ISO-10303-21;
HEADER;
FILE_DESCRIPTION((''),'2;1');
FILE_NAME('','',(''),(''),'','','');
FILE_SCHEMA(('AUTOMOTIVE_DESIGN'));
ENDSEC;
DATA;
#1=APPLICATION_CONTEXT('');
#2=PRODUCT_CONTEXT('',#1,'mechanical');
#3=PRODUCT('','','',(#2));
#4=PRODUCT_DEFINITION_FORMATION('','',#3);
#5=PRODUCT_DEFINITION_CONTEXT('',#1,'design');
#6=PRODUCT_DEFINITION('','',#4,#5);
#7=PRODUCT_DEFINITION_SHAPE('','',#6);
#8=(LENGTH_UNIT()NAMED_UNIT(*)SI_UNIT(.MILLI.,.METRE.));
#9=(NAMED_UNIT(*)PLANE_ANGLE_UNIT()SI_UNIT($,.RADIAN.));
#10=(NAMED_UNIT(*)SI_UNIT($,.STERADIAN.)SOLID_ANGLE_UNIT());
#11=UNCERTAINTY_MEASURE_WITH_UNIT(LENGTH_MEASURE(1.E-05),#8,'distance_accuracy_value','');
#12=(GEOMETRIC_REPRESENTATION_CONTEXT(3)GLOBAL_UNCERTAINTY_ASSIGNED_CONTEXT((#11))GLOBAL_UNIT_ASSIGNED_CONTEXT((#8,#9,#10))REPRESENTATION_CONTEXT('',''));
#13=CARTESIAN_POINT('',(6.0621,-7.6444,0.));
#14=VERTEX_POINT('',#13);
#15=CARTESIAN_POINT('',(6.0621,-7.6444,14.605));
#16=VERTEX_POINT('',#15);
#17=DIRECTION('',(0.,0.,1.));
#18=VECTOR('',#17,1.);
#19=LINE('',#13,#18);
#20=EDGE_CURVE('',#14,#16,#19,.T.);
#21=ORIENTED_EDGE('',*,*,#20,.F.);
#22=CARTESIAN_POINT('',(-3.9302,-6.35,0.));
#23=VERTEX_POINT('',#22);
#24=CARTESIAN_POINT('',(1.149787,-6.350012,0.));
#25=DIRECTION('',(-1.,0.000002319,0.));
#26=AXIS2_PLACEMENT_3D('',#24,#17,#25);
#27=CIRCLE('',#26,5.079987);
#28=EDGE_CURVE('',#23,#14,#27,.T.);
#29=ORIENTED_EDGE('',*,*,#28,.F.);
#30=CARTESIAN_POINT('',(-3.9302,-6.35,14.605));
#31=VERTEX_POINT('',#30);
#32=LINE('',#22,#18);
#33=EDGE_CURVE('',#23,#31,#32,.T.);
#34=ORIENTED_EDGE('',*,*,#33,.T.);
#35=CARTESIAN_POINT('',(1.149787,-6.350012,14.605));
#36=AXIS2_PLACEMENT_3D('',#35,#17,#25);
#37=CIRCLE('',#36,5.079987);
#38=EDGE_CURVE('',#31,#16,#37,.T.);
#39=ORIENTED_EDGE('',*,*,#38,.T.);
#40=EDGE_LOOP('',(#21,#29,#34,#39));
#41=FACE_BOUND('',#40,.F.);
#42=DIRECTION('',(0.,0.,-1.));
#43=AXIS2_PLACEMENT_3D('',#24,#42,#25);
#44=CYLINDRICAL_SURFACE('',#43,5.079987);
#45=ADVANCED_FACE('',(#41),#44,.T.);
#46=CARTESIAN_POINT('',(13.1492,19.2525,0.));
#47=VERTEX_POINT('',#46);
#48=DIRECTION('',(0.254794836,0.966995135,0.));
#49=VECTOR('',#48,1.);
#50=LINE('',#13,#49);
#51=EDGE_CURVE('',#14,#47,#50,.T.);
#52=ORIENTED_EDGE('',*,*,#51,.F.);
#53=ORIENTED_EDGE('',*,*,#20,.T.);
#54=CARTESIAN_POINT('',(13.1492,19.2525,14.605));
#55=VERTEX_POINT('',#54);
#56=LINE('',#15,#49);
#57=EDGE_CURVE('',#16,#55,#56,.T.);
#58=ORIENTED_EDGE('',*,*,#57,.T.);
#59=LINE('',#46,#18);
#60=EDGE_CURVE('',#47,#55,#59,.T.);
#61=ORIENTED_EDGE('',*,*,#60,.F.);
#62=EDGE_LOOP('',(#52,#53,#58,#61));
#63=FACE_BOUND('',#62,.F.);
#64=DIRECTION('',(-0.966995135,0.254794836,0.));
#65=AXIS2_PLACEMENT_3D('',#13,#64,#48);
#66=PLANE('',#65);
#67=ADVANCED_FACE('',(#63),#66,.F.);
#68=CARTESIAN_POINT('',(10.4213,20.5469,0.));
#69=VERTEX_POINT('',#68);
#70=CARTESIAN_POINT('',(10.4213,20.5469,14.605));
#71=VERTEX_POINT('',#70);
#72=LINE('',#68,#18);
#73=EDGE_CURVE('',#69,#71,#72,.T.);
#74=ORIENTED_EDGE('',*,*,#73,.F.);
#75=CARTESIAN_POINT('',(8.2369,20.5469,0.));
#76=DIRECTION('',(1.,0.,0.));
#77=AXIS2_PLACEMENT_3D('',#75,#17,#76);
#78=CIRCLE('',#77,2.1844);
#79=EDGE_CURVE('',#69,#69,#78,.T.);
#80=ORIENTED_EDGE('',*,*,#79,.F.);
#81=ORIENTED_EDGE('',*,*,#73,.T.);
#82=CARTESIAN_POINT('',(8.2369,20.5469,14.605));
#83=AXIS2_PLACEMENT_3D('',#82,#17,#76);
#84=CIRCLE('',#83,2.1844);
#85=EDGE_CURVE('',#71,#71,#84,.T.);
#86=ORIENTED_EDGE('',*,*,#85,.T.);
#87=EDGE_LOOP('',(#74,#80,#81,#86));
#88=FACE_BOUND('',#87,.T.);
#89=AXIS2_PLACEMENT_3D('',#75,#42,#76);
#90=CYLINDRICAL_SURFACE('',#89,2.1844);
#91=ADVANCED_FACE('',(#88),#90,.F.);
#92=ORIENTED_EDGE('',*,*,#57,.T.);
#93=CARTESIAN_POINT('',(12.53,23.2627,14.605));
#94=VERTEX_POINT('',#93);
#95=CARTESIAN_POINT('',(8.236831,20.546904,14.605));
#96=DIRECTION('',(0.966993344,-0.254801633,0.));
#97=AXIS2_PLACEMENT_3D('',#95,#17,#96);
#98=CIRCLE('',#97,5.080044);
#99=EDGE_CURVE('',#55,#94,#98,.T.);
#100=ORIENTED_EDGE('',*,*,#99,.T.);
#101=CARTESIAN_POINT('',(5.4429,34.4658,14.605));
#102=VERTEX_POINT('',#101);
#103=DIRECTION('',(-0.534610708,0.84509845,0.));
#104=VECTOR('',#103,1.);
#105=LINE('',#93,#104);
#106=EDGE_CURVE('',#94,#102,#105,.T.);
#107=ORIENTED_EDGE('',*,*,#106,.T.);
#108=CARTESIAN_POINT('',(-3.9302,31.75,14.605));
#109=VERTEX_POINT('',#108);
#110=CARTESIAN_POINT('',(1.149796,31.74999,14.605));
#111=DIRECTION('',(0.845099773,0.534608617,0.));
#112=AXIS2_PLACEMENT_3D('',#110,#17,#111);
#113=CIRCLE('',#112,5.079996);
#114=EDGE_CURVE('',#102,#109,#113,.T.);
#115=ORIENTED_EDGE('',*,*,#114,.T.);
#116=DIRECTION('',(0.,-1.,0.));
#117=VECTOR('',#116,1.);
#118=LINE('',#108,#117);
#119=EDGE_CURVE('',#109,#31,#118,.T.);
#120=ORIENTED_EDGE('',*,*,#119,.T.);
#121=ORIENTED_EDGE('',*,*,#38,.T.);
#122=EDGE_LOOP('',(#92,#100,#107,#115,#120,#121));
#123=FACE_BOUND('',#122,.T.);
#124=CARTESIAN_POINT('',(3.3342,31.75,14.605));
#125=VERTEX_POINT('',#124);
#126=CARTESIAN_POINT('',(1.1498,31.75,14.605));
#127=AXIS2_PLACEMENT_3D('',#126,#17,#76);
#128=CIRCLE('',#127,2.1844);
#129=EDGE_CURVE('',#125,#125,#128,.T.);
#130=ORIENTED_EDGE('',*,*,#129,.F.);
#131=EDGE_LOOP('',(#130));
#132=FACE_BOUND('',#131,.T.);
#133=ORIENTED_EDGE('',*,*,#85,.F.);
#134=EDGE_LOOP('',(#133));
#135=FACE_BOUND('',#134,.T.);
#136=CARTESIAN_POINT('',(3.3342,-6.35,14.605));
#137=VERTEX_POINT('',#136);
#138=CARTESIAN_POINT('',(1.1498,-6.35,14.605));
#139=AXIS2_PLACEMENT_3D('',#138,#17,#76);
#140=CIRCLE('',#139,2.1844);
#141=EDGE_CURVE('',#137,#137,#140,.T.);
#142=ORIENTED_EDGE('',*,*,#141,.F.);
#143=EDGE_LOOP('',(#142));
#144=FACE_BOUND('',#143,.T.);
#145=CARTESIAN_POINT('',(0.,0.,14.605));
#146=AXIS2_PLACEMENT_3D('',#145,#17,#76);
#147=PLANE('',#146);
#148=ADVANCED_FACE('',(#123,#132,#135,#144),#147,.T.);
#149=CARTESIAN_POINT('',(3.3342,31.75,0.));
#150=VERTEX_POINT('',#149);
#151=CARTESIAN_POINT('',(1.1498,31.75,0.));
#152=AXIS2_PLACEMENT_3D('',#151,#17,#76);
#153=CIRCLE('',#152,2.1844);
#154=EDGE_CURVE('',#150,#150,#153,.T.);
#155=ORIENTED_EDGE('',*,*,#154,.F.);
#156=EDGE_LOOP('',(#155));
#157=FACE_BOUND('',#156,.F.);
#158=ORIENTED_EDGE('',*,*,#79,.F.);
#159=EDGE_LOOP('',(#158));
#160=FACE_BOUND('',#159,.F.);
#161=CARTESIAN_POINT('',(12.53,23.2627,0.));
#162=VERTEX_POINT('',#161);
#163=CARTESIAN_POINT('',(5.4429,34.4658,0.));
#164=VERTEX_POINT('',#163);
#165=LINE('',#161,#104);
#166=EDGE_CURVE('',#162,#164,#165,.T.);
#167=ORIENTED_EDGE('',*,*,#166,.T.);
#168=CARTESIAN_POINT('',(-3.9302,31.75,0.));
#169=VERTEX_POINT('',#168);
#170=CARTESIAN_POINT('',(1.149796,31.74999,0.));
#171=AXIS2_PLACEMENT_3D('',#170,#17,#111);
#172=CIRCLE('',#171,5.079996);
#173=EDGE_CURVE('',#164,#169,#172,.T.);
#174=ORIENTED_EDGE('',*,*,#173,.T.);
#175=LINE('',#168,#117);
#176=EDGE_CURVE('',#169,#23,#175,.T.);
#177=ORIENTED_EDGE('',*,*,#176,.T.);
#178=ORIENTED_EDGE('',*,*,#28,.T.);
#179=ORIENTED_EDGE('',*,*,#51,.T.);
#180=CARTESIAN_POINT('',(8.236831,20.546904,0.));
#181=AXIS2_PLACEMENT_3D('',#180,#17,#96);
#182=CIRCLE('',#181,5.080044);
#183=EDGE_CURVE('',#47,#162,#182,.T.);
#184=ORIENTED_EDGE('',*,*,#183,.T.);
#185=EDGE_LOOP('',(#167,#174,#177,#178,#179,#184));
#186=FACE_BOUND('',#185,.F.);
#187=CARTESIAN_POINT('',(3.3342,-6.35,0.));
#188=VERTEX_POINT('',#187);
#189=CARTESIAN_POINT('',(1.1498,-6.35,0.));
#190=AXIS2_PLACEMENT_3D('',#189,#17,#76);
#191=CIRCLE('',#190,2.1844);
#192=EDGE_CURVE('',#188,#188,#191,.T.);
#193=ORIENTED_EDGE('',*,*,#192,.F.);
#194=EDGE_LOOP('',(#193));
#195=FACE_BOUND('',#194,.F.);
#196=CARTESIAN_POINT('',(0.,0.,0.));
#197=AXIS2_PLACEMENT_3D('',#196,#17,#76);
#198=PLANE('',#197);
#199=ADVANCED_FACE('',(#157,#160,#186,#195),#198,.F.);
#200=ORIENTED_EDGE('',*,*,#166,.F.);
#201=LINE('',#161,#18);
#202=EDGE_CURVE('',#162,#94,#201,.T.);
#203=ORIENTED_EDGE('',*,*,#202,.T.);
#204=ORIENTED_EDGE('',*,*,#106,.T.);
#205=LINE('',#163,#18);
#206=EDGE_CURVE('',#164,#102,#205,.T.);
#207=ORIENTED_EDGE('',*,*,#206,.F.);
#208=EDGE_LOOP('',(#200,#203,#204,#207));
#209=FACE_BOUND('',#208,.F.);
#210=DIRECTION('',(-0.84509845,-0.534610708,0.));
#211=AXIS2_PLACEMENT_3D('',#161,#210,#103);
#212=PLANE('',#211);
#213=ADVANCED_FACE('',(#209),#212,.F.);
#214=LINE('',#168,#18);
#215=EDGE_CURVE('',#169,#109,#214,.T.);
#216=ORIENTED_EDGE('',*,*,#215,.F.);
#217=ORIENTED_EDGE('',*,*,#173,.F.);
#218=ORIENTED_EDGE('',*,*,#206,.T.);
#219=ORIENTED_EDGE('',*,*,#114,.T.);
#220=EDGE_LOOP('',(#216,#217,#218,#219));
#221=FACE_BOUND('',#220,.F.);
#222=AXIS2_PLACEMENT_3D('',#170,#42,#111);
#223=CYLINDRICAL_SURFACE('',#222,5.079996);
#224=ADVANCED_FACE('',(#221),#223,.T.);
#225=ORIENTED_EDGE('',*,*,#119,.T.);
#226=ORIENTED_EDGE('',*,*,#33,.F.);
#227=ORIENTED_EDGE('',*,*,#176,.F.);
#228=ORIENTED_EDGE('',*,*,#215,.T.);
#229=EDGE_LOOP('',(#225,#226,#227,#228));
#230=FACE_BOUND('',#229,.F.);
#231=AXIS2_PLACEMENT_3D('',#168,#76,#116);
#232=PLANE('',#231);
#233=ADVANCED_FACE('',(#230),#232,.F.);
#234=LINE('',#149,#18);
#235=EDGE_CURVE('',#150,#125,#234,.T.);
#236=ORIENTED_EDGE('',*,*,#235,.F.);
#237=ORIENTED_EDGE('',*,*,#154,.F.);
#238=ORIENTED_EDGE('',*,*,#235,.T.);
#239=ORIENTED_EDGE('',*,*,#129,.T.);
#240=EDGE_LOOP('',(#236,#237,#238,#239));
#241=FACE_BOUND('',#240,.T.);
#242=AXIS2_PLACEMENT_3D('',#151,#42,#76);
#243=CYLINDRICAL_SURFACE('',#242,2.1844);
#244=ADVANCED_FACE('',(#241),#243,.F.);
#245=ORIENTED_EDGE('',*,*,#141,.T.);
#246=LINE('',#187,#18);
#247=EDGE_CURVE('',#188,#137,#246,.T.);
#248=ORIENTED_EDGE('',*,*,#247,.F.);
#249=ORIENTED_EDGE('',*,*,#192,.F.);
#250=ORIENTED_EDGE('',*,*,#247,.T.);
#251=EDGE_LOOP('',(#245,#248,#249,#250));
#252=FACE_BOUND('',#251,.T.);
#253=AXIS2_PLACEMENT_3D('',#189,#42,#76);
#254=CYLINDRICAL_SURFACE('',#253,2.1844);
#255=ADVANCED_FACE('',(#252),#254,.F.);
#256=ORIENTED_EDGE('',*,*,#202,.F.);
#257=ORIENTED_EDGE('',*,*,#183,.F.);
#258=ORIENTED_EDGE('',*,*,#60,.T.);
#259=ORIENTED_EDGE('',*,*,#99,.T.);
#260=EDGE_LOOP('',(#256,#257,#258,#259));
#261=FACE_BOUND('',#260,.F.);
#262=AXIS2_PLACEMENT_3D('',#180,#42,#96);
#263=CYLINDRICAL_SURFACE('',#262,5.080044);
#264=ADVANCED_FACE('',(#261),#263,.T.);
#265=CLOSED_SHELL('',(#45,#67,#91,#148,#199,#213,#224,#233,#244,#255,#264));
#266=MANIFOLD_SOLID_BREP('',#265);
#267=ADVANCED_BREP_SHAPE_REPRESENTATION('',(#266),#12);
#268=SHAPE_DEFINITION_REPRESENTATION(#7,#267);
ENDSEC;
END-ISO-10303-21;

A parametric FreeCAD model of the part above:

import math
import FreeCAD as App
import Part
import Sketcher

V = App.Vector
Q = App.Units.Quantity

doc = App.newDocument("Part")
body = doc.addObject("PartDesign::Body", "Body")

# Sketch on XY plane
sketch1 = body.newObject("Sketcher::SketchObject", "Sketch")
sketch1.AttachmentSupport = (doc.getObject("XY_Plane"), [""])
sketch1.MapMode = "FlatFace"
sketch1.addGeometry(Part.LineSegment(V(-3.9302, 31.75, 0), V(-3.9302, -6.35, 0)), False)
sketch1.addGeometry(Part.ArcOfCircle(Part.Circle(V(1.1498, -6.35, 0), V(0, 0, 1), 5.08), math.radians(180), math.radians(345.238009)), False)
sketch1.addGeometry(Part.LineSegment(V(6.0621, -7.6444, 0), V(13.1492, 19.2525, 0)), False)
sketch1.addGeometry(Part.ArcOfCircle(Part.Circle(V(8.2369, 20.5469, 0), V(0, 0, 1), 5.079977), math.radians(-14.761991), math.radians(32.317302)), False)
sketch1.addGeometry(Part.LineSegment(V(12.53, 23.2627, 0), V(5.4429, 34.4658, 0)), False)
sketch1.addGeometry(Part.ArcOfCircle(Part.Circle(V(1.1498, 31.75, 0), V(0, 0, 1), 5.079988), math.radians(32.317302), math.radians(180)), False)
sketch1.addGeometry(Part.Circle(V(1.1498, -6.35, 0), V(0, 0, 1), 2.1844), False)
sketch1.addGeometry(Part.Circle(V(1.1498, 31.75, 0), V(0, 0, 1), 2.1844), False)
sketch1.addGeometry(Part.Circle(V(8.2369, 20.5469, 0), V(0, 0, 1), 2.1844), False)
sketch1.addConstraint(Sketcher.Constraint("Tangent", 0, 2, 1, 1))
sketch1.addConstraint(Sketcher.Constraint("Tangent", 1, 2, 2, 1))
sketch1.addConstraint(Sketcher.Constraint("Tangent", 2, 2, 3, 1))
sketch1.addConstraint(Sketcher.Constraint("Tangent", 3, 2, 4, 1))
sketch1.addConstraint(Sketcher.Constraint("Tangent", 4, 2, 5, 1))
sketch1.addConstraint(Sketcher.Constraint("Tangent", 5, 2, 0, 1))
sketch1.addConstraint(Sketcher.Constraint("Vertical", 0))
sketch1.addConstraint(Sketcher.Constraint("Coincident", 6, 3, 1, 3))
sketch1.addConstraint(Sketcher.Constraint("Coincident", 7, 3, 5, 3))
sketch1.addConstraint(Sketcher.Constraint("Coincident", 8, 3, 3, 3))
sketch1.addConstraint(Sketcher.Constraint("Equal", 1, 3))
sketch1.addConstraint(Sketcher.Constraint("Equal", 3, 5))
sketch1.addConstraint(Sketcher.Constraint("Equal", 6, 7))
sketch1.addConstraint(Sketcher.Constraint("Equal", 7, 8))
sketch1.addConstraint(Sketcher.Constraint("Radius", 1, Q("0.2 in")))
sketch1.addConstraint(Sketcher.Constraint("Diameter", 6, Q("0.172 in")))
sketch1.addConstraint(Sketcher.Constraint("DistanceY", 0, 2, 0, 1, Q("1.5 in")))
sketch1.addConstraint(Sketcher.Constraint("DistanceY", 1, 3, -1, 1, Q("0.25 in")))
sketch1.addConstraint(Sketcher.Constraint("DistanceX", 4, 2, 3, 3, Q("0.11 in")))
sketch1.addConstraint(Sketcher.Constraint("DistanceY", 3, 3, 4, 2, Q("0.548 in")))
sketch1.addConstraint(Sketcher.Constraint("DistanceX", -1, 1, 3, 2, Q("0.4933 in")))
pad1 = body.newObject("PartDesign::Pad", "Pad")
pad1.Profile = sketch1
pad1.Length = Q("0.575 in")

doc.recompute()
